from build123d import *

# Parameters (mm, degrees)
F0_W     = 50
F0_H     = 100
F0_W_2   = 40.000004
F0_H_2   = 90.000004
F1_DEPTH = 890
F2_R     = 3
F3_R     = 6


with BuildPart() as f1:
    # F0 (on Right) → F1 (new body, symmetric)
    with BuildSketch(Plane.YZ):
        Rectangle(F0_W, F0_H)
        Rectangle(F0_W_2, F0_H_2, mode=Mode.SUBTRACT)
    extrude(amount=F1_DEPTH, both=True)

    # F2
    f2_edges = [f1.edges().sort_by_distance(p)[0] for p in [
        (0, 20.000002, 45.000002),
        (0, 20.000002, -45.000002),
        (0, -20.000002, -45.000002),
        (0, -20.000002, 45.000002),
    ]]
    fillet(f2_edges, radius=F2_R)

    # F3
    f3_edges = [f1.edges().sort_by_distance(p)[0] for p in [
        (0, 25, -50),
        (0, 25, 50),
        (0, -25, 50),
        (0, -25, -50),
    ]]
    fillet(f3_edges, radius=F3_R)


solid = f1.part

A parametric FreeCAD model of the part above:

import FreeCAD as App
import Part
import Sketcher


def edges_at(feature, points):
    """Names of the edges that pass closest to the given points."""
    edges = feature.Shape.Edges
    near = lambda p: min(range(len(edges)), key=lambda i: edges[i].distToShape(Part.Vertex(*p))[0])
    return sorted({f"Edge{near(p) + 1}" for p in points})

doc = App.newDocument("Part")
body = doc.addObject("PartDesign::Body", "Body")

sketch1 = doc.addObject("Sketcher::SketchObject", "Sketch")
body.addObject(sketch1)
sketch1.AttachmentSupport = (doc.YZ_Plane, [""])
sketch1.MapMode = "FlatFace"
sketch1.addGeometry([
    Part.LineSegment(App.Vector(-25, 50, 0), App.Vector(-25, -50, 0)),
    Part.LineSegment(App.Vector(-25, -50, 0), App.Vector(25, -50, 0)),
    Part.LineSegment(App.Vector(25, -50, 0), App.Vector(25, 50, 0)),
    Part.LineSegment(App.Vector(25, 50, 0), App.Vector(-25, 50, 0)),
    Part.LineSegment(App.Vector(20.000002, -45.000002, 0), App.Vector(-20.000002, -45.000002, 0)),
    Part.LineSegment(App.Vector(-20.000002, -45.000002, 0), App.Vector(-20.000002, 45.000002, 0)),
    Part.LineSegment(App.Vector(-20.000002, 45.000002, 0), App.Vector(20.000002, 45.000002, 0)),
    Part.LineSegment(App.Vector(20.000002, 45.000002, 0), App.Vector(20.000002, -45.000002, 0)),
], False)
sketch1.addConstraint([
    Sketcher.Constraint("Coincident", 0, 2, 1, 1),
    Sketcher.Constraint("Coincident", 1, 2, 2, 1),
    Sketcher.Constraint("Coincident", 2, 2, 3, 1),
    Sketcher.Constraint("Coincident", 3, 2, 0, 1),
    Sketcher.Constraint("Coincident", 4, 2, 5, 1),
    Sketcher.Constraint("Coincident", 5, 2, 6, 1),
    Sketcher.Constraint("Coincident", 6, 2, 7, 1),
    Sketcher.Constraint("Coincident", 7, 2, 4, 1),
    Sketcher.Constraint("Vertical", 0),
    Sketcher.Constraint("Horizontal", 1),
    Sketcher.Constraint("Vertical", 2),
    Sketcher.Constraint("Horizontal", 3),
    Sketcher.Constraint("Horizontal", 4),
    Sketcher.Constraint("Vertical", 5),
    Sketcher.Constraint("Horizontal", 6),
    Sketcher.Constraint("Vertical", 7),
    Sketcher.Constraint("Symmetric", 0, 2, 2, 2, -1, 1),
    Sketcher.Constraint("Symmetric", 4, 2, 6, 2, -1, 1),
    Sketcher.Constraint("DistanceX", 1, 1, 1, 2, 50.0),
    Sketcher.Constraint("DistanceY", 0, 2, 0, 1, 100.0),
    Sketcher.Constraint("DistanceX", 4, 2, -1, 1, 20.000002),
    Sketcher.Constraint("DistanceY", 4, 2, 3, 2, 95.000002),
])
pad1 = doc.addObject("PartDesign::Pad", "Pad")
body.addObject(pad1)
pad1.Profile = sketch1
pad1.Length = 1780
pad1.Midplane = True
doc.recompute()

fillet = doc.addObject("PartDesign::Fillet", "Fillet")
body.addObject(fillet)
fillet.Base = (pad1, edges_at(pad1, [
    (0, 20, 45),
    (0, 20, -45),
    (0, -20, -45),
    (0, -20, 45),
]))
fillet.Radius = 3
doc.recompute()

fillet2 = doc.addObject("PartDesign::Fillet", "Fillet001")
body.addObject(fillet2)
fillet2.Base = (fillet, edges_at(fillet, [
    (0, 25, -50),
    (0, 25, 50),
    (0, -25, 50),
    (0, -25, -50),
]))
fillet2.Radius = 6

doc.recompute()
